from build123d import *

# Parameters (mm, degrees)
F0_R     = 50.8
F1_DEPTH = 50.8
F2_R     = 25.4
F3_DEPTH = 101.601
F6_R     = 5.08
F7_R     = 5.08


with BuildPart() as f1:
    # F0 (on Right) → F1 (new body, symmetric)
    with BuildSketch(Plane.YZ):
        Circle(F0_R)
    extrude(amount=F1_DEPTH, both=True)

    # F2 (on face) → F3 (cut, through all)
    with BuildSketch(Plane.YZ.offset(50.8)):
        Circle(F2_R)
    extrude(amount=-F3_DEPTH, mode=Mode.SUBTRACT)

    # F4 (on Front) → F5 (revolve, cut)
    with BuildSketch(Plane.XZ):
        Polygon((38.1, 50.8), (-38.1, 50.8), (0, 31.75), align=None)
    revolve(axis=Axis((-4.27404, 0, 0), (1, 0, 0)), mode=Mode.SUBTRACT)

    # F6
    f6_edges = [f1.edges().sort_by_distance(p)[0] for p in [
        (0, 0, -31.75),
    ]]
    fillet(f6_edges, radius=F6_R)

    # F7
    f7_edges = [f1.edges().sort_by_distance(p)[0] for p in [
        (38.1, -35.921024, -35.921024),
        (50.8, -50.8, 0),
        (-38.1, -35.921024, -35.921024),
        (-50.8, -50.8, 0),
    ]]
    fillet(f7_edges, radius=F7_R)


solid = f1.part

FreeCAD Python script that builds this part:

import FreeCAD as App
import Part
import Sketcher
Q = App.Units.Quantity


def edges_at(feature, points):
    """Names of the edges that pass closest to the given points."""
    edges = feature.Shape.Edges
    near = lambda p: min(range(len(edges)), key=lambda i: edges[i].distToShape(Part.Vertex(*p))[0])
    return sorted({f"Edge{near(p) + 1}" for p in points})


def add_polygon(sketch, points):
    """Adds a closed chain of lines whose ends are joined by coincident constraints."""
    first, n = sketch.GeometryCount, len(points)
    for a, b in zip(points, points[1:] + points[:1]):
        sketch.addGeometry(Part.LineSegment(App.Vector(*a, 0), App.Vector(*b, 0)), False)
    for i in range(n):
        sketch.addConstraint(Sketcher.Constraint("Coincident", first + i, 2, first + (i + 1) % n, 1))

doc = App.newDocument("Part")
body = doc.addObject("PartDesign::Body", "Body")

# Sketch on YZ plane
sketch1 = body.newObject("Sketcher::SketchObject", "Sketch")
sketch1.AttachmentSupport = (doc.getObject("YZ_Plane"), [""])
sketch1.MapMode = "FlatFace"
sketch1.addGeometry(Part.Circle(App.Vector(0, 0, 0), App.Vector(0, 0, 1), 51), False)
sketch1.addConstraint([
    Sketcher.Constraint("Coincident", 0, 3, -1, 1),
    Sketcher.Constraint("Diameter", 0, Q("4 in")),
])
pad1 = body.newObject("PartDesign::Pad", "Pad")
pad1.Profile = sketch1
pad1.Length = Q("4 in")
pad1.Midplane = True

# Sketch on YZ plane
sketch2 = body.newObject("Sketcher::SketchObject", "Sketch001")
sketch2.AttachmentSupport = (doc.getObject("YZ_Plane"), [""])
sketch2.MapMode = "FlatFace"
sketch2.AttachmentOffset = App.Placement(App.Vector(0, 0, 2 * 25.4), App.Rotation())
sketch2.addGeometry(Part.Circle(App.Vector(0, 0, 0), App.Vector(0, 0, 1), 25), False)
sketch2.addConstraint([
    Sketcher.Constraint("Coincident", 0, 3, -1, 1),
    Sketcher.Constraint("Diameter", 0, Q("2 in")),
])
pocket1 = body.newObject("PartDesign::Pocket", "Pocket")
pocket1.Profile = sketch2
pocket1.Type = "ThroughAll"

# Sketch on XZ plane
sketch3 = body.newObject("Sketcher::SketchObject", "Sketch002")
sketch3.AttachmentSupport = (doc.getObject("XZ_Plane"), [""])
sketch3.MapMode = "FlatFace"
add_polygon(sketch3, [(38, 51), (-38, 51), (0, 32)])  # lines 0-2
sketch3.addConstraint([
    Sketcher.Constraint("Horizontal", 0),
    Sketcher.Constraint("PointOnObject", 1, 2, -2),
    Sketcher.Constraint("Equal", 1, 2),
    Sketcher.Constraint("DistanceX", 0, 2, 0, 1, Q("3 in")),
    Sketcher.Constraint("DistanceY", -1, 1, 0, 2, Q("2 in")),
    Sketcher.Constraint("DistanceY", -1, 1, 1, 2, Q("1.25 in")),
])
groove = body.newObject("PartDesign::Groove", "Groove")
groove.Profile = sketch3
groove.ReferenceAxis = (sketch3, ["H_Axis"])
groove.Angle = 360
doc.recompute()

fillet = body.newObject("PartDesign::Fillet", "Fillet")
fillet.Base = (groove, edges_at(groove, [(0, 0, -31.75)]))
fillet.Radius = Q("0.2 in")
doc.recompute()

fillet2 = body.newObject("PartDesign::Fillet", "Fillet001")
fillet2.Base = (fillet, edges_at(fillet, [
    (38.1, -35.921, -35.921),
    (50.8, -50.8, 0),
    (-38.1, -35.921, -35.921),
    (-50.8, -50.8, 0),
]))
fillet2.Radius = Q("0.2 in")

doc.recompute()
